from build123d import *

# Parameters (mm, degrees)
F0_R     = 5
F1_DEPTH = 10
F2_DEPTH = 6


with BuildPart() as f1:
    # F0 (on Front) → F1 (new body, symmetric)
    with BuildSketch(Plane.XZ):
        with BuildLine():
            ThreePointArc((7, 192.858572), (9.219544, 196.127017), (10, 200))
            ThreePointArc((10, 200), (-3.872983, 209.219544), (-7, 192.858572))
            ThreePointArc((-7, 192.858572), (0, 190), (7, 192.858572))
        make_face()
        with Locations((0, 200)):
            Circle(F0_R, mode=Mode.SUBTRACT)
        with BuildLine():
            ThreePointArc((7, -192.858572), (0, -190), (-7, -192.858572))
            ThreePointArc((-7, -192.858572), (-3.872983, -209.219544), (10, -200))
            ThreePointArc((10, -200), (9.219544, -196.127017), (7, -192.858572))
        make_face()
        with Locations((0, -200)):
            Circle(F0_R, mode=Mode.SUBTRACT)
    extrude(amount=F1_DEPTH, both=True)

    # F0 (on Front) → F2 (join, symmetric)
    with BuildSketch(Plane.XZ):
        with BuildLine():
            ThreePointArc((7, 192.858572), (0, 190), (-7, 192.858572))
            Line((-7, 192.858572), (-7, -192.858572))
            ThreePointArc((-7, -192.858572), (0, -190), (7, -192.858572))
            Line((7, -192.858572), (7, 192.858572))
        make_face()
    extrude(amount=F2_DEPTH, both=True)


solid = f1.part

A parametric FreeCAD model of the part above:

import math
import FreeCAD as App
import Part
import Sketcher

V = App.Vector

doc = App.newDocument("Part")
body = doc.addObject("PartDesign::Body", "Body")
body.AllowCompound = True

# Sketch on XZ plane
sketch1 = doc.addObject("Sketcher::SketchObject", "Sketch")
body.addObject(sketch1)
sketch1.AttachmentSupport = (doc.XZ_Plane, [""])
sketch1.MapMode = "FlatFace"
sketch1.addGeometry(Part.ArcOfCircle(Part.Circle(V(-0.000005, 200.000002, 0), V(0, 0, 1), 10.000005), math.radians(-45.572985), math.radians(-0.000014)), False)
sketch1.addGeometry(Part.ArcOfCircle(Part.Circle(V(0, 200, 0), V(0, 0, 1), 10), math.radians(0.000001), math.radians(225.572992)), False)
sketch1.addGeometry(Part.ArcOfCircle(Part.Circle(V(0, 199.999999, 0), V(0, 0, 1), 9.999999), math.radians(-134.42701), math.radians(-45.57299)), False)
sketch1.addGeometry(Part.Circle(V(0, 200, 0), V(0, 0, 1), 5), False)
sketch1.addGeometry(Part.ArcOfCircle(Part.Circle(V(0, -199.999999, 0), V(0, 0, 1), 9.999999), math.radians(45.57299), math.radians(134.42701)), False)
sketch1.addGeometry(Part.ArcOfCircle(Part.Circle(V(0, -200, 0), V(0, 0, 1), 10), math.radians(134.427008), math.radians(359.999999)), False)
sketch1.addGeometry(Part.ArcOfCircle(Part.Circle(V(-0.000005, -200.000002, 0), V(0, 0, 1), 10.000005), math.radians(0.000014), math.radians(45.572985)), False)
sketch1.addGeometry(Part.Circle(V(0, -200, 0), V(0, 0, 1), 5), False)
sketch1.addConstraint(Sketcher.Constraint("Tangent", 0, 2, 1, 1))
sketch1.addConstraint(Sketcher.Constraint("Tangent", 1, 2, 2, 1))
sketch1.addConstraint(Sketcher.Constraint("Tangent", 2, 2, 0, 1))
sketch1.addConstraint(Sketcher.Constraint("Tangent", 4, 2, 5, 1))
sketch1.addConstraint(Sketcher.Constraint("Tangent", 5, 2, 6, 1))
sketch1.addConstraint(Sketcher.Constraint("Tangent", 6, 2, 4, 1))
sketch1.addConstraint(Sketcher.Constraint("Coincident", 3, 3, 0, 3))
sketch1.addConstraint(Sketcher.Constraint("Coincident", 7, 3, 4, 3))
sketch1.addConstraint(Sketcher.Constraint("Equal", 2, 4))
sketch1.addConstraint(Sketcher.Constraint("Equal", 3, 7))
sketch1.addConstraint(Sketcher.Constraint("Symmetric", 0, 3, 4, 3, -1, 1))
sketch1.addConstraint(Sketcher.Constraint("Symmetric", 1, 2, 2, 2, -2))
sketch1.addConstraint(Sketcher.Constraint("Horizontal", 3, 3, 0, 2))
sketch1.addConstraint(Sketcher.Constraint("Horizontal", 7, 3, 5, 2))
sketch1.addConstraint(Sketcher.Constraint("Horizontal", 4, 2, 6, 2))
sketch1.addConstraint(Sketcher.Constraint("Vertical", 1, 2, 4, 2))
sketch1.addConstraint(Sketcher.Constraint("Diameter", 3, 10.0))
sketch1.addConstraint(Sketcher.Constraint("Radius", 1, 10.0))
sketch1.addConstraint(Sketcher.Constraint("DistanceY", -1, 1, 1, 3, 200.0))
sketch1.addConstraint(Sketcher.Constraint("DistanceX", 1, 2, -1, 1, 7.0))
pad1 = doc.addObject("PartDesign::Pad", "Pad")
body.addObject(pad1)
pad1.Profile = sketch1
pad1.Length = 20
pad1.Midplane = True

# Sketch on XZ plane
sketch2 = doc.addObject("Sketcher::SketchObject", "Sketch001")
body.addObject(sketch2)
sketch2.AttachmentSupport = (doc.XZ_Plane, [""])
sketch2.MapMode = "FlatFace"
sketch2.addGeometry(Part.ArcOfCircle(Part.Circle(V(0, 199.999999, 0), V(0, 0, 1), 9.999999), math.radians(-134.42701), math.radians(-45.57299)), False)
sketch2.addGeometry(Part.LineSegment(V(-7, 192.858572, 0), V(-7, -192.858572, 0)), False)
sketch2.addGeometry(Part.ArcOfCircle(Part.Circle(V(0, -199.999999, 0), V(0, 0, 1), 9.999999), math.radians(45.57299), math.radians(134.42701)), False)
sketch2.addGeometry(Part.LineSegment(V(7, -192.858572, 0), V(7, 192.858572, 0)), False)
sketch2.addConstraint(Sketcher.Constraint("Coincident", 0, 1, 1, 1))
sketch2.addConstraint(Sketcher.Constraint("Coincident", 1, 2, 2, 2))
sketch2.addConstraint(Sketcher.Constraint("Coincident", 2, 1, 3, 1))
sketch2.addConstraint(Sketcher.Constraint("Coincident", 3, 2, 0, 2))
sketch2.addConstraint(Sketcher.Constraint("Vertical", 1))
sketch2.addConstraint(Sketcher.Constraint("Vertical", 3))
sketch2.addConstraint(Sketcher.Constraint("Equal", 0, 2))
sketch2.addConstraint(Sketcher.Constraint("Symmetric", 0, 3, 2, 3, -1, 1))
sketch2.addConstraint(Sketcher.Constraint("Symmetric", 1, 2, 2, 1, -2))
sketch2.addConstraint(Sketcher.Constraint("Radius", 0, 9.999999))
sketch2.addConstraint(Sketcher.Constraint("DistanceY", -1, 1, 0, 3, 199.999999))
sketch2.addConstraint(Sketcher.Constraint("DistanceX", 0, 1, -1, 1, 7.0))
pad2 = doc.addObject("PartDesign::Pad", "Pad001")
body.addObject(pad2)
pad2.Profile = sketch2
pad2.Length = 12
pad2.Midplane = True

doc.recompute()
